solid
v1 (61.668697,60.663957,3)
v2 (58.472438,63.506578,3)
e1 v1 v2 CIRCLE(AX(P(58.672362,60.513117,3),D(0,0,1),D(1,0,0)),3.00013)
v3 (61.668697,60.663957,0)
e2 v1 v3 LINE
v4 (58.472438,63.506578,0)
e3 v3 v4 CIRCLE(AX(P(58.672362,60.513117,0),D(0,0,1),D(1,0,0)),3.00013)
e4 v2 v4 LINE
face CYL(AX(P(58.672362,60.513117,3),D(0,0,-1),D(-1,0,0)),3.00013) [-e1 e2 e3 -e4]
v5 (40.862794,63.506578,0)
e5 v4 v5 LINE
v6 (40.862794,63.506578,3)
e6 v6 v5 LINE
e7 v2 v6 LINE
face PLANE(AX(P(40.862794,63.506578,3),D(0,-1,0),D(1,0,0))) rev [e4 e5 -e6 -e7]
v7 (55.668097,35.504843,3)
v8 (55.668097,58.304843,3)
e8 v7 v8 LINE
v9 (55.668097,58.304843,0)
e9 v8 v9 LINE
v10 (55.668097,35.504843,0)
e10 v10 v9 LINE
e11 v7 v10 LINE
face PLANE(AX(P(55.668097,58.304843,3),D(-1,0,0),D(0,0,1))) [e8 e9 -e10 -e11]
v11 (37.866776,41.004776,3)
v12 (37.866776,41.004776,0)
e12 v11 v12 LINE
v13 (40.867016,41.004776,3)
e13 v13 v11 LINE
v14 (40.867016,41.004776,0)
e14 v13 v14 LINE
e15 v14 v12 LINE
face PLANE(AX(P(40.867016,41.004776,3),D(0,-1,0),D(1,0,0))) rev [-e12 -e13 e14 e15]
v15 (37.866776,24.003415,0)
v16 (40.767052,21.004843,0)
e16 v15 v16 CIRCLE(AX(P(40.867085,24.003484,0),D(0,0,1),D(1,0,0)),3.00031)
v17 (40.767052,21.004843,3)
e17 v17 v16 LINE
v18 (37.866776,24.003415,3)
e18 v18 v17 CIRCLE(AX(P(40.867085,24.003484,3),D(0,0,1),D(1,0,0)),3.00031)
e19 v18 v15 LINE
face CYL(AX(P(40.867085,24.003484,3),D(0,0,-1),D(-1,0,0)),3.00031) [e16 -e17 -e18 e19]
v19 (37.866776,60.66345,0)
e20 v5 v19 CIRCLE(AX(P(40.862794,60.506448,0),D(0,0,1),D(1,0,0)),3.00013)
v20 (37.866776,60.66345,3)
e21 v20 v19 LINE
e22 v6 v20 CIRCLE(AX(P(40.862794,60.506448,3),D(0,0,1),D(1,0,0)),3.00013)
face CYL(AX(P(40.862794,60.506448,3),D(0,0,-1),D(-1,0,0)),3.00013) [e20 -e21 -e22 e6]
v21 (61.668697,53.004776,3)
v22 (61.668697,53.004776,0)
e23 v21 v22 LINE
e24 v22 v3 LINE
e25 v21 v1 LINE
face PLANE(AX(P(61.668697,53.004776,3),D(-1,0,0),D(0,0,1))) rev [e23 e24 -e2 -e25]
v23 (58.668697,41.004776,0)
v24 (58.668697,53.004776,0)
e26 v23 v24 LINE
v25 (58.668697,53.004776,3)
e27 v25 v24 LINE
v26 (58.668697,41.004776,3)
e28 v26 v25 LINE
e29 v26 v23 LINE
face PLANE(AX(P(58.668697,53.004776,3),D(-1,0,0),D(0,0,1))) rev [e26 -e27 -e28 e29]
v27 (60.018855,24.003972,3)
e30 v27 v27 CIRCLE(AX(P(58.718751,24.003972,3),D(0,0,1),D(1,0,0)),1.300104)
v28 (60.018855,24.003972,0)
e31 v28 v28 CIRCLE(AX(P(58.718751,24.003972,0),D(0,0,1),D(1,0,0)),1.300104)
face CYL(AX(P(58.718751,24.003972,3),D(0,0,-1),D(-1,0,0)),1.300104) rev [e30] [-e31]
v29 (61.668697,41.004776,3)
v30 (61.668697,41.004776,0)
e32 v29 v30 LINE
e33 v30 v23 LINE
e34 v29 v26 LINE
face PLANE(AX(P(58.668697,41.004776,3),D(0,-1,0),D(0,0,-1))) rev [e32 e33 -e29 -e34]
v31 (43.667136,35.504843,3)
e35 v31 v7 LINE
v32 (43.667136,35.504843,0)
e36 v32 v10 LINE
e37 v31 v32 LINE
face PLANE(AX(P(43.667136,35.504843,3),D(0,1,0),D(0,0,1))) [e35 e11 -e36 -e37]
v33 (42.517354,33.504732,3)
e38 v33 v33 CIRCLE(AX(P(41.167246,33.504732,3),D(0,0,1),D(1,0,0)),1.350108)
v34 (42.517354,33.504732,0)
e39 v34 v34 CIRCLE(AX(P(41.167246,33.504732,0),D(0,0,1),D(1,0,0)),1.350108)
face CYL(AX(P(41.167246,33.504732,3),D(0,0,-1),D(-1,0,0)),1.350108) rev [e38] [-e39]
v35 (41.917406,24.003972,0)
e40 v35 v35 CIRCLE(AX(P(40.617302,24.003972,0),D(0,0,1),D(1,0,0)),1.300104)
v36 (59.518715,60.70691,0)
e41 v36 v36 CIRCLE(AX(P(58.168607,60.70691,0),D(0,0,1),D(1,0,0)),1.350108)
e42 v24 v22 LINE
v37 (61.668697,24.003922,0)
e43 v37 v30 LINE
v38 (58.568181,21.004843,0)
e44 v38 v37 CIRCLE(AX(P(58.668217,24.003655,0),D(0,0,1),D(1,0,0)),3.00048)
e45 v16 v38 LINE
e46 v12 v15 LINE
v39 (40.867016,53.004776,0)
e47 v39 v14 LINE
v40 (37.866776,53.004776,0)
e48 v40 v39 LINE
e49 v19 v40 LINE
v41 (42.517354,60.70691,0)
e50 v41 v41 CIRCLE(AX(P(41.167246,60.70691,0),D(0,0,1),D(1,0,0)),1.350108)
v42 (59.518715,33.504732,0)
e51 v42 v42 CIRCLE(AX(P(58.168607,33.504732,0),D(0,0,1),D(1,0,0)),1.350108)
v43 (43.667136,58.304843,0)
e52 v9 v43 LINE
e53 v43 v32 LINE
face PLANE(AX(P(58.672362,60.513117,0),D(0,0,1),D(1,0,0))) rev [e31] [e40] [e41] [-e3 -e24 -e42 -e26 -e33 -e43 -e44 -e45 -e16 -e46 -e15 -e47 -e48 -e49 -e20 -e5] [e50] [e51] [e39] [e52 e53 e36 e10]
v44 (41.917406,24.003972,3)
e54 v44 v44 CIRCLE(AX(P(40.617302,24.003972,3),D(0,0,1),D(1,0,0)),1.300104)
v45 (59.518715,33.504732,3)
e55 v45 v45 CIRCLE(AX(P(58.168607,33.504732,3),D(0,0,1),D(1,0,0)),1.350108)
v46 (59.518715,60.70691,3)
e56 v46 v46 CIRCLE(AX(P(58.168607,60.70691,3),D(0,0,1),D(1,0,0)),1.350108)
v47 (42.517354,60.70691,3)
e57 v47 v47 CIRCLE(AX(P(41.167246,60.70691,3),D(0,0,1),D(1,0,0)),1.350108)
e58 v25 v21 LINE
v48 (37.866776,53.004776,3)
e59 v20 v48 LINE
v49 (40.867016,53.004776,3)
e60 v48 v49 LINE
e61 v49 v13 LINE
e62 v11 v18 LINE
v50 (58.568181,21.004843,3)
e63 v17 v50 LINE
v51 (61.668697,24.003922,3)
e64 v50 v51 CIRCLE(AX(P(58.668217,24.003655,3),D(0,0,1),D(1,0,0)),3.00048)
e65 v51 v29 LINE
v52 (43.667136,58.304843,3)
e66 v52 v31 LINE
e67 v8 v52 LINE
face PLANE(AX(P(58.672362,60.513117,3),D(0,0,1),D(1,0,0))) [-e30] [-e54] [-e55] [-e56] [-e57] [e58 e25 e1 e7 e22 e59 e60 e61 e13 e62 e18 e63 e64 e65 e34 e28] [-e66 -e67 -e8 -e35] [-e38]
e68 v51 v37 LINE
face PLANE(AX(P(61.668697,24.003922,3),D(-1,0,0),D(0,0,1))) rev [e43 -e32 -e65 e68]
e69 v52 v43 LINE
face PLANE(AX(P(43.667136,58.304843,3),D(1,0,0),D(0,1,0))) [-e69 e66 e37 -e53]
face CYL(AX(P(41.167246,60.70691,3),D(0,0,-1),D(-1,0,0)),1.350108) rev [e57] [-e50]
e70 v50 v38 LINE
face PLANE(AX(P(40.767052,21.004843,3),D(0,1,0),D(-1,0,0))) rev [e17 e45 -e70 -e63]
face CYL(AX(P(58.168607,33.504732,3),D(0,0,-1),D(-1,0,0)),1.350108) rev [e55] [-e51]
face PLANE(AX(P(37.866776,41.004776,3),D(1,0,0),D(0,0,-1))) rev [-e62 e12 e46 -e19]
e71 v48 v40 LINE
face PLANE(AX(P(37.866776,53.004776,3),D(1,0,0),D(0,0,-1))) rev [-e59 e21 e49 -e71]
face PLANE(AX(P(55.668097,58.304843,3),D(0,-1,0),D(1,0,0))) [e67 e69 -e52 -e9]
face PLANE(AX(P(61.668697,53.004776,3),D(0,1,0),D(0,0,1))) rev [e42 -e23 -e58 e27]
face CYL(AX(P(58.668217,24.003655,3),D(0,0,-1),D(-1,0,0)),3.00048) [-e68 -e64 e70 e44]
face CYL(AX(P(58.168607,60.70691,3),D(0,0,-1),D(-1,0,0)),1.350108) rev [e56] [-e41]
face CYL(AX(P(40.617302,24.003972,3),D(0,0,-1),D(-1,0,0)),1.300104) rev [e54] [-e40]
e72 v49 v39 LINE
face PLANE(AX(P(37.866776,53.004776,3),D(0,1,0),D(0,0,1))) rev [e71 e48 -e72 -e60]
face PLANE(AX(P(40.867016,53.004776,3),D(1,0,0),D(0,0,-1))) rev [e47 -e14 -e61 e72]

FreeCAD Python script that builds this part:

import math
import FreeCAD as App
import Part
import Sketcher

V = App.Vector
Q = App.Units.Quantity

doc = App.newDocument("Part")
body = doc.addObject("PartDesign::Body", "Body")

sketch1 = body.newObject("Sketcher::SketchObject", "Sketch")
sketch1.AttachmentSupport = (doc.getObject("XY_Plane"), [""])
sketch1.MapMode = "FlatFace"
sketch1.addGeometry([
    Part.LineSegment(V(61.7, 41, 0), V(58.7, 41, 0)),
    Part.LineSegment(V(58.7, 41, 0), V(58.7, 53, 0)),
    Part.LineSegment(V(58.7, 53, 0), V(61.7, 53, 0)),
    Part.LineSegment(V(61.7, 53, 0), V(61.7, 60.7, 0)),
    Part.ArcOfCircle(Part.Circle(V(58.7, 60.5, 0), V(0, 0, 1), 3), math.radians(3), math.radians(94)),
    Part.LineSegment(V(58.5, 63.5, 0), V(40.9, 63.5, 0)),
    Part.ArcOfCircle(Part.Circle(V(40.9, 60.5, 0), V(0, 0, 1), 3), math.radians(90), math.radians(177)),
    Part.LineSegment(V(37.9, 60.7, 0), V(37.9, 53, 0)),
    Part.LineSegment(V(37.9, 53, 0), V(40.9, 53, 0)),
    Part.LineSegment(V(40.9, 53, 0), V(40.9, 41, 0)),
    Part.LineSegment(V(40.9, 41, 0), V(37.9, 41, 0)),
    Part.LineSegment(V(37.9, 41, 0), V(37.9, 24, 0)),
    Part.ArcOfCircle(Part.Circle(V(40.9, 24, 0), V(0, 0, 1), 3), math.radians(-180), math.radians(-92)),
    Part.LineSegment(V(40.8, 21, 0), V(58.6, 21, 0)),
    Part.ArcOfCircle(Part.Circle(V(58.7, 24, 0), V(0, 0, 1), 3), math.radians(-92), math.radians(0)),
    Part.LineSegment(V(61.7, 24, 0), V(61.7, 41, 0)),
    Part.Circle(V(58.7, 24, 0), V(0, 0, 1), 1.3),
    Part.Circle(V(58.2, 33.5, 0), V(0, 0, 1), 1.4),
    Part.Circle(V(40.6, 24, 0), V(0, 0, 1), 1.3),
    Part.Circle(V(41.2, 33.5, 0), V(0, 0, 1), 1.4),
    Part.Circle(V(58.2, 60.7, 0), V(0, 0, 1), 1.4),
    Part.LineSegment(V(43.7, 35.5, 0), V(43.7, 58.3, 0)),
    Part.LineSegment(V(43.7, 58.3, 0), V(55.7, 58.3, 0)),
    Part.LineSegment(V(55.7, 58.3, 0), V(55.7, 35.5, 0)),
    Part.LineSegment(V(55.7, 35.5, 0), V(43.7, 35.5, 0)),
    Part.Circle(V(41.2, 60.7, 0), V(0, 0, 1), 1.4),
], False)
sketch1.addConstraint([
    Sketcher.Constraint("Coincident", 0, 2, 1, 1),
    Sketcher.Constraint("Coincident", 1, 2, 2, 1),
    Sketcher.Constraint("Coincident", 2, 2, 3, 1),
    Sketcher.Constraint("Coincident", 3, 2, 4, 1),
    Sketcher.Constraint("Coincident", 4, 2, 5, 1),
    Sketcher.Constraint("Tangent", 5, 2, 6, 1),
    Sketcher.Constraint("Coincident", 6, 2, 7, 1),
    Sketcher.Constraint("Coincident", 7, 2, 8, 1),
    Sketcher.Constraint("Coincident", 8, 2, 9, 1),
    Sketcher.Constraint("Coincident", 9, 2, 10, 1),
    Sketcher.Constraint("Coincident", 10, 2, 11, 1),
    Sketcher.Constraint("Coincident", 11, 2, 12, 1),
    Sketcher.Constraint("Coincident", 12, 2, 13, 1),
    Sketcher.Constraint("Coincident", 13, 2, 14, 1),
    Sketcher.Constraint("Coincident", 14, 2, 15, 1),
    Sketcher.Constraint("Coincident", 15, 2, 0, 1),
    Sketcher.Constraint("Coincident", 21, 2, 22, 1),
    Sketcher.Constraint("Coincident", 22, 2, 23, 1),
    Sketcher.Constraint("Coincident", 23, 2, 24, 1),
    Sketcher.Constraint("Coincident", 24, 2, 21, 1),
    Sketcher.Constraint("Horizontal", 0),
    Sketcher.Constraint("Vertical", 1),
    Sketcher.Constraint("Horizontal", 2),
    Sketcher.Constraint("Vertical", 3),
    Sketcher.Constraint("Horizontal", 5),
    Sketcher.Constraint("Vertical", 7),
    Sketcher.Constraint("Horizontal", 8),
    Sketcher.Constraint("Vertical", 9),
    Sketcher.Constraint("Horizontal", 10),
    Sketcher.Constraint("Vertical", 11),
    Sketcher.Constraint("Horizontal", 13),
    Sketcher.Constraint("Vertical", 15),
    Sketcher.Constraint("Vertical", 21),
    Sketcher.Constraint("Horizontal", 22),
    Sketcher.Constraint("Vertical", 23),
    Sketcher.Constraint("Horizontal", 24),
    Sketcher.Constraint("Equal", 4, 6),
    Sketcher.Constraint("Equal", 16, 18),
    Sketcher.Constraint("Equal", 17, 19),
    Sketcher.Constraint("Equal", 19, 20),
    Sketcher.Constraint("Equal", 20, 25),
    Sketcher.Constraint("Horizontal", 16, 3, 18, 3),
    Sketcher.Constraint("Horizontal", 17, 3, 19, 3),
    Sketcher.Constraint("Horizontal", 20, 3, 25, 3),
    Sketcher.Constraint("Horizontal", 2, 2, 7, 2),
    Sketcher.Constraint("Horizontal", 0, 2, 9, 2),
    Sketcher.Constraint("Vertical", 17, 3, 20, 3),
    Sketcher.Constraint("Vertical", 19, 3, 25, 3),
    Sketcher.Constraint("Vertical", 7, 2, 10, 2),
    Sketcher.Constraint("Vertical", 3, 2, 14, 2),
    Sketcher.Constraint("DistanceX", 0, 2, 0, 1, Q("3 mm")),
    Sketcher.Constraint("DistanceY", 1, 1, 1, 2, Q("12 mm")),
    Sketcher.Constraint("DistanceY", 21, 1, 21, 2, Q("22.8 mm")),
    Sketcher.Constraint("Diameter", 16, Q("2.600208 mm")),
    Sketcher.Constraint("Radius", 4, Q("3.00013 mm")),
    Sketcher.Constraint("Radius", 12, Q("3.00031 mm")),
    Sketcher.Constraint("Radius", 14, Q("3.00048 mm")),
    Sketcher.Constraint("Diameter", 17, Q("2.700216 mm")),
    Sketcher.Constraint("DistanceY", 6, 3, 6, 2, Q("0.157002 mm")),
    Sketcher.Constraint("DistanceX", 8, 1, 8, 2, Q("3.00024 mm")),
    Sketcher.Constraint("DistanceX", 13, 1, 13, 2, Q("17.801129 mm")),
    Sketcher.Constraint("DistanceX", 22, 1, 22, 2, Q("12.000961 mm")),
    Sketcher.Constraint("DistanceY", 3, 1, 3, 2, Q("7.659181 mm")),
    Sketcher.Constraint("DistanceY", 11, 2, 11, 1, Q("17.001361 mm")),
    Sketcher.Constraint("DistanceX", -1, 1, 18, 3, Q("40.617302 mm")),
    Sketcher.Constraint("DistanceY", 1, 2, 4, 2, Q("10.501802 mm")),
    Sketcher.Constraint("DistanceX", 22, 2, 1, 2, Q("3.000601 mm")),
    Sketcher.Constraint("DistanceX", 5, 2, 5, 1, Q("17.609644 mm")),
    Sketcher.Constraint("DistanceY", 15, 1, 15, 2, Q("17.000854 mm")),
    Sketcher.Constraint("DistanceY", -1, 1, 6, 3, Q("60.506448 mm")),
    Sketcher.Constraint("DistanceX", -1, 1, 16, 3, Q("58.718751 mm")),
    Sketcher.Constraint("DistanceY", -1, 1, 16, 3, Q("24.003972 mm")),
    Sketcher.Constraint("DistanceY", -1, 1, 20, 3, Q("60.70691 mm")),
    Sketcher.Constraint("DistanceX", -1, 1, 4, 2, Q("58.472438 mm")),
    Sketcher.Constraint("DistanceX", -1, 1, 12, 2, Q("40.767052 mm")),
    Sketcher.Constraint("DistanceY", 6, 3, 4, 3, Q("0.006669 mm")),
    Sketcher.Constraint("DistanceY", 14, 3, 4, 3, Q("36.509462 mm")),
    Sketcher.Constraint("DistanceX", 17, 3, 14, 3, Q("0.49961 mm")),
    Sketcher.Constraint("DistanceY", 16, 3, 17, 3, Q("9.500761 mm")),
    Sketcher.Constraint("DistanceX", 12, 3, 19, 3, Q("0.300161 mm")),
    Sketcher.Constraint("DistanceY", 17, 3, 23, 2, Q("2.00011 mm")),
])
pad1 = body.newObject("PartDesign::Pad", "Pad")
pad1.Profile = sketch1
pad1.Length = 3

doc.recompute()
